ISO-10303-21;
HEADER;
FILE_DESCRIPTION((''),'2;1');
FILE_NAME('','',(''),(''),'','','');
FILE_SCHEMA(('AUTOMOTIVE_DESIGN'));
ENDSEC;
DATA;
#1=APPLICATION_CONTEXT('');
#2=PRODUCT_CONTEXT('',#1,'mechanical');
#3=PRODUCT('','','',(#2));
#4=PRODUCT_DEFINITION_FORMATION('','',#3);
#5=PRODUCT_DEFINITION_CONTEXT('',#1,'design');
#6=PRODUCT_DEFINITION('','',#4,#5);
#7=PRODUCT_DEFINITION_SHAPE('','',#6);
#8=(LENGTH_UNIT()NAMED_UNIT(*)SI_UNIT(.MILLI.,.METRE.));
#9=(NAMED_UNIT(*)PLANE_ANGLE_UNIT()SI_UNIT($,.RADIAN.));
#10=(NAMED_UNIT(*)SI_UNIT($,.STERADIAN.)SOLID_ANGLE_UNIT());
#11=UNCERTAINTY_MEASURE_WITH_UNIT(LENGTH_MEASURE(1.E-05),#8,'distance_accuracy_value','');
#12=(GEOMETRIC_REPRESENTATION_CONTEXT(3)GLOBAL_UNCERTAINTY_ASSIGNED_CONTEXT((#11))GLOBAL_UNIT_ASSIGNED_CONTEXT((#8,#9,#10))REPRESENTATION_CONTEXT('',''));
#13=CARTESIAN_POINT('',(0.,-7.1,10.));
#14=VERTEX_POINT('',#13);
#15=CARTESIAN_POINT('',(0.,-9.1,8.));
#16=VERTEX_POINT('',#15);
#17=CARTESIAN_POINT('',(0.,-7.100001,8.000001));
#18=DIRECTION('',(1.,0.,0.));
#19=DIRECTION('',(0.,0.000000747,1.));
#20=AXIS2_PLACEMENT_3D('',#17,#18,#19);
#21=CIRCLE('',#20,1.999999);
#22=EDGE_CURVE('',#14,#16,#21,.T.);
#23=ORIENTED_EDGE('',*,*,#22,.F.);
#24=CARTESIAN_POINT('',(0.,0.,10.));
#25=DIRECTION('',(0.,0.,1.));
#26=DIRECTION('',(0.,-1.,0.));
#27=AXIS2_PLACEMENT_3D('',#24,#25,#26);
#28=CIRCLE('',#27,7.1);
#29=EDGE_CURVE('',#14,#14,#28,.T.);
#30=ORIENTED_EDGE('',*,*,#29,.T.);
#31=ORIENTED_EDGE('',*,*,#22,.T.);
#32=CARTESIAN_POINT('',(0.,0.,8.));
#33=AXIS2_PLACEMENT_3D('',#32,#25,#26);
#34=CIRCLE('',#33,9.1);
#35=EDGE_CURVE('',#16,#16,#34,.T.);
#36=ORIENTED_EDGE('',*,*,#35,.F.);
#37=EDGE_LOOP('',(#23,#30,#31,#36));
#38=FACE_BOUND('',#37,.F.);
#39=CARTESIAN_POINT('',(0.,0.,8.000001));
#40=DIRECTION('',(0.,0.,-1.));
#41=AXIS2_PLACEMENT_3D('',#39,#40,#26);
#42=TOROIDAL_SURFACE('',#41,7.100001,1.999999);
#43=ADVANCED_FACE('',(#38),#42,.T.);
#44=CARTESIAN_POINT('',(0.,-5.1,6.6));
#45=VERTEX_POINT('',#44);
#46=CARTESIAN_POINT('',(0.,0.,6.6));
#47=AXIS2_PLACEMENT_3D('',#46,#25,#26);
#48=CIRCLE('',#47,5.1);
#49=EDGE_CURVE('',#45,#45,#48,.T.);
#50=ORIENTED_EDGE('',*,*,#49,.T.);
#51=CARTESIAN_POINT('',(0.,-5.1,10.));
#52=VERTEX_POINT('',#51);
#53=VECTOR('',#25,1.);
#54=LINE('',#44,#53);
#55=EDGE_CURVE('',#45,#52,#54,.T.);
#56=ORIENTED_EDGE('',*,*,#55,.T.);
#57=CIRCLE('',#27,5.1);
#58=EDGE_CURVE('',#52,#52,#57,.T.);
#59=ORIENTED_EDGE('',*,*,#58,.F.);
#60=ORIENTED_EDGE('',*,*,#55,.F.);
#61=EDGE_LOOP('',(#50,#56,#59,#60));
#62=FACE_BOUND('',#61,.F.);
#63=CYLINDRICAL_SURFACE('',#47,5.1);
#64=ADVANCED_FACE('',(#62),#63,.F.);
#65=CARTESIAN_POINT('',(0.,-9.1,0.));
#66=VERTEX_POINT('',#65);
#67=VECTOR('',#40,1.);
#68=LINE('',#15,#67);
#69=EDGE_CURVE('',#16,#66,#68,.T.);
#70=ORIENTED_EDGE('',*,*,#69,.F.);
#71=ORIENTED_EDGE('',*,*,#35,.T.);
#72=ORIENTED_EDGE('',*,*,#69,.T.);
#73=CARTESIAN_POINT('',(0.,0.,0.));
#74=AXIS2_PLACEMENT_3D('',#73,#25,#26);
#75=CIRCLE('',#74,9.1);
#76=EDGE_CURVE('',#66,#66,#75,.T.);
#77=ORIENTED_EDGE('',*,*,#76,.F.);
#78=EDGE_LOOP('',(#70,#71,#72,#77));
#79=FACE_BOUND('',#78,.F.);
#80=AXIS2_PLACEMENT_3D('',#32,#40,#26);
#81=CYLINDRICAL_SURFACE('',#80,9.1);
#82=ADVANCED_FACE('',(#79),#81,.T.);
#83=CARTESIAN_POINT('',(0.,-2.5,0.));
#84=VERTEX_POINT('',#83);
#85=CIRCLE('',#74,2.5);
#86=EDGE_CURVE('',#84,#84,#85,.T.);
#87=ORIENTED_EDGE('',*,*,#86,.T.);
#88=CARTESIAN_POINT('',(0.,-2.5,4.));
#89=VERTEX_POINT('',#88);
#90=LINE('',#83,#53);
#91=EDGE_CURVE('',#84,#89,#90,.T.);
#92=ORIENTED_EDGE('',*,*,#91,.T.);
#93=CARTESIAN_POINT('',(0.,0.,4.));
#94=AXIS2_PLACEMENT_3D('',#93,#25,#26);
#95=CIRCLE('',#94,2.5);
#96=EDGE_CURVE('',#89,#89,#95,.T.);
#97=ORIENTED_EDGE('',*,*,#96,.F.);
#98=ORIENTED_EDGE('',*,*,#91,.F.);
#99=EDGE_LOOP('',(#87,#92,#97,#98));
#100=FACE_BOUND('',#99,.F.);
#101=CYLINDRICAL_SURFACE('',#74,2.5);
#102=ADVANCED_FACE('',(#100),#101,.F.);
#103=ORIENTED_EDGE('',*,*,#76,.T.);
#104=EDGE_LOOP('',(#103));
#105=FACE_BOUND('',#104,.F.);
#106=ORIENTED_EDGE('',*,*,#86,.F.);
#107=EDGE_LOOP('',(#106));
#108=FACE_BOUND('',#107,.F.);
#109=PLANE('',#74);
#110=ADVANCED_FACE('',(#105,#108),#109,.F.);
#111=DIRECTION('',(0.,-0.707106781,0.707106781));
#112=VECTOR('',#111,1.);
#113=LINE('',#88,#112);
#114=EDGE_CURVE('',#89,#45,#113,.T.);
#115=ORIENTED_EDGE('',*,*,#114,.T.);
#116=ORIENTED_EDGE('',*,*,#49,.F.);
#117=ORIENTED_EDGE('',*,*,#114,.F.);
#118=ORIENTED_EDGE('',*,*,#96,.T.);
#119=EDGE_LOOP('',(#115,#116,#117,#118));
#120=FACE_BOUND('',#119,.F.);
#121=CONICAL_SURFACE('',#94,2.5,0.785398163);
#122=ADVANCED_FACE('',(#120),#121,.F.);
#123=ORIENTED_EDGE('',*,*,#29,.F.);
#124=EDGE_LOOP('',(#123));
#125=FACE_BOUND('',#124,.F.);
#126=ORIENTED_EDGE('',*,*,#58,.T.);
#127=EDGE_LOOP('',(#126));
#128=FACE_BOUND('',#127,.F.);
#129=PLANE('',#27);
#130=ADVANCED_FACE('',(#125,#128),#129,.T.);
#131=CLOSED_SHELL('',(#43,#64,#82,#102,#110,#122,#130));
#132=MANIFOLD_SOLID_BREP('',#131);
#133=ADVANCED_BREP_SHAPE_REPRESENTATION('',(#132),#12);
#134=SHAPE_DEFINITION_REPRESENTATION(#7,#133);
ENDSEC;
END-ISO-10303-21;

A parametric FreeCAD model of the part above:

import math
import FreeCAD as App
import Part
import Sketcher

V = App.Vector
Q = App.Units.Quantity

doc = App.newDocument("Part")
params = doc.addObject("Spreadsheet::Sheet", "Params")
for row, (alias, value) in enumerate([
    ("sketch1_radius", "1.999999 mm"),
    ("sketch1_width", "2 mm"),
    ("sketch1_height", "4 mm"),
    ("sketch1_height2", "8 mm"),
    ("sketch1_width2", "6.6 mm"),
    ("revolution_angle", "360 deg"),
], start=1):
    params.set(f"A{row}", alias)
    params.set(f"B{row}", "=" + value)
    params.setAlias(f"B{row}", alias)

body = doc.addObject("PartDesign::Body", "Body")

sketch1 = body.newObject("Sketcher::SketchObject", "Sketch")
sketch1.AttachmentSupport = (doc.getObject("YZ_Plane"), [""])
sketch1.MapMode = "FlatFace"
sketch1.addGeometry([
    Part.LineSegment(V(-9.1, 0, 0), V(-2.5, 0, 0)),
    Part.LineSegment(V(-2.5, 0, 0), V(-2.5, 4, 0)),
    Part.LineSegment(V(-2.5, 4, 0), V(-5.1, 6.6, 0)),
    Part.LineSegment(V(-5.1, 6.6, 0), V(-5.1, 10, 0)),
    Part.LineSegment(V(-5.1, 10, 0), V(-7.1, 10, 0)),
    Part.ArcOfCircle(Part.Circle(V(-7.1, 8, 0), V(0, 0, 1), 2), math.radians(90), math.radians(180)),
    Part.LineSegment(V(-9.1, 8, 0), V(-9.1, 0, 0)),
], False)
sketch1.addConstraint([
    Sketcher.Constraint("Coincident", 0, 2, 1, 1),
    Sketcher.Constraint("Coincident", 1, 2, 2, 1),
    Sketcher.Constraint("Coincident", 2, 2, 3, 1),
    Sketcher.Constraint("Coincident", 3, 2, 4, 1),
    Sketcher.Constraint("Tangent", 4, 2, 5, 1),
    Sketcher.Constraint("Tangent", 5, 2, 6, 1),
    Sketcher.Constraint("Coincident", 6, 2, 0, 1),
    Sketcher.Constraint("Horizontal", 0),
    Sketcher.Constraint("Vertical", 1),
    Sketcher.Constraint("Vertical", 3),
    Sketcher.Constraint("Horizontal", 4),
    Sketcher.Constraint("Vertical", 6),
    Sketcher.Constraint("PointOnObject", 0, 2, -1),
    Sketcher.Constraint("Radius", 5, Q("1.999999 mm")),
    Sketcher.Constraint("DistanceX", 4, 2, 4, 1, Q("2 mm")),
    Sketcher.Constraint("DistanceY", 1, 1, 1, 2, Q("4 mm")),
    Sketcher.Constraint("DistanceY", 6, 2, 6, 1, Q("8 mm")),
    Sketcher.Constraint("Angle", 2, Q("135 deg")),
    Sketcher.Constraint("DistanceX", 0, 1, 0, 2, Q("6.6 mm")),
    Sketcher.Constraint("DistanceX", 5, 3, -1, 1, Q("7.100001 mm")),
])
sketch1.setExpression("Constraints[13]", "Params.sketch1_radius")
sketch1.setExpression("Constraints[14]", "Params.sketch1_width")
sketch1.setExpression("Constraints[15]", "Params.sketch1_height")
sketch1.setExpression("Constraints[16]", "Params.sketch1_height2")
sketch1.setExpression("Constraints[18]", "Params.sketch1_width2")
revolution = body.newObject("PartDesign::Revolution", "Revolution")
revolution.Profile = sketch1
revolution.ReferenceAxis = (sketch1, ["V_Axis"])
revolution.setExpression("Angle", "Params.revolution_angle")

doc.recompute()
